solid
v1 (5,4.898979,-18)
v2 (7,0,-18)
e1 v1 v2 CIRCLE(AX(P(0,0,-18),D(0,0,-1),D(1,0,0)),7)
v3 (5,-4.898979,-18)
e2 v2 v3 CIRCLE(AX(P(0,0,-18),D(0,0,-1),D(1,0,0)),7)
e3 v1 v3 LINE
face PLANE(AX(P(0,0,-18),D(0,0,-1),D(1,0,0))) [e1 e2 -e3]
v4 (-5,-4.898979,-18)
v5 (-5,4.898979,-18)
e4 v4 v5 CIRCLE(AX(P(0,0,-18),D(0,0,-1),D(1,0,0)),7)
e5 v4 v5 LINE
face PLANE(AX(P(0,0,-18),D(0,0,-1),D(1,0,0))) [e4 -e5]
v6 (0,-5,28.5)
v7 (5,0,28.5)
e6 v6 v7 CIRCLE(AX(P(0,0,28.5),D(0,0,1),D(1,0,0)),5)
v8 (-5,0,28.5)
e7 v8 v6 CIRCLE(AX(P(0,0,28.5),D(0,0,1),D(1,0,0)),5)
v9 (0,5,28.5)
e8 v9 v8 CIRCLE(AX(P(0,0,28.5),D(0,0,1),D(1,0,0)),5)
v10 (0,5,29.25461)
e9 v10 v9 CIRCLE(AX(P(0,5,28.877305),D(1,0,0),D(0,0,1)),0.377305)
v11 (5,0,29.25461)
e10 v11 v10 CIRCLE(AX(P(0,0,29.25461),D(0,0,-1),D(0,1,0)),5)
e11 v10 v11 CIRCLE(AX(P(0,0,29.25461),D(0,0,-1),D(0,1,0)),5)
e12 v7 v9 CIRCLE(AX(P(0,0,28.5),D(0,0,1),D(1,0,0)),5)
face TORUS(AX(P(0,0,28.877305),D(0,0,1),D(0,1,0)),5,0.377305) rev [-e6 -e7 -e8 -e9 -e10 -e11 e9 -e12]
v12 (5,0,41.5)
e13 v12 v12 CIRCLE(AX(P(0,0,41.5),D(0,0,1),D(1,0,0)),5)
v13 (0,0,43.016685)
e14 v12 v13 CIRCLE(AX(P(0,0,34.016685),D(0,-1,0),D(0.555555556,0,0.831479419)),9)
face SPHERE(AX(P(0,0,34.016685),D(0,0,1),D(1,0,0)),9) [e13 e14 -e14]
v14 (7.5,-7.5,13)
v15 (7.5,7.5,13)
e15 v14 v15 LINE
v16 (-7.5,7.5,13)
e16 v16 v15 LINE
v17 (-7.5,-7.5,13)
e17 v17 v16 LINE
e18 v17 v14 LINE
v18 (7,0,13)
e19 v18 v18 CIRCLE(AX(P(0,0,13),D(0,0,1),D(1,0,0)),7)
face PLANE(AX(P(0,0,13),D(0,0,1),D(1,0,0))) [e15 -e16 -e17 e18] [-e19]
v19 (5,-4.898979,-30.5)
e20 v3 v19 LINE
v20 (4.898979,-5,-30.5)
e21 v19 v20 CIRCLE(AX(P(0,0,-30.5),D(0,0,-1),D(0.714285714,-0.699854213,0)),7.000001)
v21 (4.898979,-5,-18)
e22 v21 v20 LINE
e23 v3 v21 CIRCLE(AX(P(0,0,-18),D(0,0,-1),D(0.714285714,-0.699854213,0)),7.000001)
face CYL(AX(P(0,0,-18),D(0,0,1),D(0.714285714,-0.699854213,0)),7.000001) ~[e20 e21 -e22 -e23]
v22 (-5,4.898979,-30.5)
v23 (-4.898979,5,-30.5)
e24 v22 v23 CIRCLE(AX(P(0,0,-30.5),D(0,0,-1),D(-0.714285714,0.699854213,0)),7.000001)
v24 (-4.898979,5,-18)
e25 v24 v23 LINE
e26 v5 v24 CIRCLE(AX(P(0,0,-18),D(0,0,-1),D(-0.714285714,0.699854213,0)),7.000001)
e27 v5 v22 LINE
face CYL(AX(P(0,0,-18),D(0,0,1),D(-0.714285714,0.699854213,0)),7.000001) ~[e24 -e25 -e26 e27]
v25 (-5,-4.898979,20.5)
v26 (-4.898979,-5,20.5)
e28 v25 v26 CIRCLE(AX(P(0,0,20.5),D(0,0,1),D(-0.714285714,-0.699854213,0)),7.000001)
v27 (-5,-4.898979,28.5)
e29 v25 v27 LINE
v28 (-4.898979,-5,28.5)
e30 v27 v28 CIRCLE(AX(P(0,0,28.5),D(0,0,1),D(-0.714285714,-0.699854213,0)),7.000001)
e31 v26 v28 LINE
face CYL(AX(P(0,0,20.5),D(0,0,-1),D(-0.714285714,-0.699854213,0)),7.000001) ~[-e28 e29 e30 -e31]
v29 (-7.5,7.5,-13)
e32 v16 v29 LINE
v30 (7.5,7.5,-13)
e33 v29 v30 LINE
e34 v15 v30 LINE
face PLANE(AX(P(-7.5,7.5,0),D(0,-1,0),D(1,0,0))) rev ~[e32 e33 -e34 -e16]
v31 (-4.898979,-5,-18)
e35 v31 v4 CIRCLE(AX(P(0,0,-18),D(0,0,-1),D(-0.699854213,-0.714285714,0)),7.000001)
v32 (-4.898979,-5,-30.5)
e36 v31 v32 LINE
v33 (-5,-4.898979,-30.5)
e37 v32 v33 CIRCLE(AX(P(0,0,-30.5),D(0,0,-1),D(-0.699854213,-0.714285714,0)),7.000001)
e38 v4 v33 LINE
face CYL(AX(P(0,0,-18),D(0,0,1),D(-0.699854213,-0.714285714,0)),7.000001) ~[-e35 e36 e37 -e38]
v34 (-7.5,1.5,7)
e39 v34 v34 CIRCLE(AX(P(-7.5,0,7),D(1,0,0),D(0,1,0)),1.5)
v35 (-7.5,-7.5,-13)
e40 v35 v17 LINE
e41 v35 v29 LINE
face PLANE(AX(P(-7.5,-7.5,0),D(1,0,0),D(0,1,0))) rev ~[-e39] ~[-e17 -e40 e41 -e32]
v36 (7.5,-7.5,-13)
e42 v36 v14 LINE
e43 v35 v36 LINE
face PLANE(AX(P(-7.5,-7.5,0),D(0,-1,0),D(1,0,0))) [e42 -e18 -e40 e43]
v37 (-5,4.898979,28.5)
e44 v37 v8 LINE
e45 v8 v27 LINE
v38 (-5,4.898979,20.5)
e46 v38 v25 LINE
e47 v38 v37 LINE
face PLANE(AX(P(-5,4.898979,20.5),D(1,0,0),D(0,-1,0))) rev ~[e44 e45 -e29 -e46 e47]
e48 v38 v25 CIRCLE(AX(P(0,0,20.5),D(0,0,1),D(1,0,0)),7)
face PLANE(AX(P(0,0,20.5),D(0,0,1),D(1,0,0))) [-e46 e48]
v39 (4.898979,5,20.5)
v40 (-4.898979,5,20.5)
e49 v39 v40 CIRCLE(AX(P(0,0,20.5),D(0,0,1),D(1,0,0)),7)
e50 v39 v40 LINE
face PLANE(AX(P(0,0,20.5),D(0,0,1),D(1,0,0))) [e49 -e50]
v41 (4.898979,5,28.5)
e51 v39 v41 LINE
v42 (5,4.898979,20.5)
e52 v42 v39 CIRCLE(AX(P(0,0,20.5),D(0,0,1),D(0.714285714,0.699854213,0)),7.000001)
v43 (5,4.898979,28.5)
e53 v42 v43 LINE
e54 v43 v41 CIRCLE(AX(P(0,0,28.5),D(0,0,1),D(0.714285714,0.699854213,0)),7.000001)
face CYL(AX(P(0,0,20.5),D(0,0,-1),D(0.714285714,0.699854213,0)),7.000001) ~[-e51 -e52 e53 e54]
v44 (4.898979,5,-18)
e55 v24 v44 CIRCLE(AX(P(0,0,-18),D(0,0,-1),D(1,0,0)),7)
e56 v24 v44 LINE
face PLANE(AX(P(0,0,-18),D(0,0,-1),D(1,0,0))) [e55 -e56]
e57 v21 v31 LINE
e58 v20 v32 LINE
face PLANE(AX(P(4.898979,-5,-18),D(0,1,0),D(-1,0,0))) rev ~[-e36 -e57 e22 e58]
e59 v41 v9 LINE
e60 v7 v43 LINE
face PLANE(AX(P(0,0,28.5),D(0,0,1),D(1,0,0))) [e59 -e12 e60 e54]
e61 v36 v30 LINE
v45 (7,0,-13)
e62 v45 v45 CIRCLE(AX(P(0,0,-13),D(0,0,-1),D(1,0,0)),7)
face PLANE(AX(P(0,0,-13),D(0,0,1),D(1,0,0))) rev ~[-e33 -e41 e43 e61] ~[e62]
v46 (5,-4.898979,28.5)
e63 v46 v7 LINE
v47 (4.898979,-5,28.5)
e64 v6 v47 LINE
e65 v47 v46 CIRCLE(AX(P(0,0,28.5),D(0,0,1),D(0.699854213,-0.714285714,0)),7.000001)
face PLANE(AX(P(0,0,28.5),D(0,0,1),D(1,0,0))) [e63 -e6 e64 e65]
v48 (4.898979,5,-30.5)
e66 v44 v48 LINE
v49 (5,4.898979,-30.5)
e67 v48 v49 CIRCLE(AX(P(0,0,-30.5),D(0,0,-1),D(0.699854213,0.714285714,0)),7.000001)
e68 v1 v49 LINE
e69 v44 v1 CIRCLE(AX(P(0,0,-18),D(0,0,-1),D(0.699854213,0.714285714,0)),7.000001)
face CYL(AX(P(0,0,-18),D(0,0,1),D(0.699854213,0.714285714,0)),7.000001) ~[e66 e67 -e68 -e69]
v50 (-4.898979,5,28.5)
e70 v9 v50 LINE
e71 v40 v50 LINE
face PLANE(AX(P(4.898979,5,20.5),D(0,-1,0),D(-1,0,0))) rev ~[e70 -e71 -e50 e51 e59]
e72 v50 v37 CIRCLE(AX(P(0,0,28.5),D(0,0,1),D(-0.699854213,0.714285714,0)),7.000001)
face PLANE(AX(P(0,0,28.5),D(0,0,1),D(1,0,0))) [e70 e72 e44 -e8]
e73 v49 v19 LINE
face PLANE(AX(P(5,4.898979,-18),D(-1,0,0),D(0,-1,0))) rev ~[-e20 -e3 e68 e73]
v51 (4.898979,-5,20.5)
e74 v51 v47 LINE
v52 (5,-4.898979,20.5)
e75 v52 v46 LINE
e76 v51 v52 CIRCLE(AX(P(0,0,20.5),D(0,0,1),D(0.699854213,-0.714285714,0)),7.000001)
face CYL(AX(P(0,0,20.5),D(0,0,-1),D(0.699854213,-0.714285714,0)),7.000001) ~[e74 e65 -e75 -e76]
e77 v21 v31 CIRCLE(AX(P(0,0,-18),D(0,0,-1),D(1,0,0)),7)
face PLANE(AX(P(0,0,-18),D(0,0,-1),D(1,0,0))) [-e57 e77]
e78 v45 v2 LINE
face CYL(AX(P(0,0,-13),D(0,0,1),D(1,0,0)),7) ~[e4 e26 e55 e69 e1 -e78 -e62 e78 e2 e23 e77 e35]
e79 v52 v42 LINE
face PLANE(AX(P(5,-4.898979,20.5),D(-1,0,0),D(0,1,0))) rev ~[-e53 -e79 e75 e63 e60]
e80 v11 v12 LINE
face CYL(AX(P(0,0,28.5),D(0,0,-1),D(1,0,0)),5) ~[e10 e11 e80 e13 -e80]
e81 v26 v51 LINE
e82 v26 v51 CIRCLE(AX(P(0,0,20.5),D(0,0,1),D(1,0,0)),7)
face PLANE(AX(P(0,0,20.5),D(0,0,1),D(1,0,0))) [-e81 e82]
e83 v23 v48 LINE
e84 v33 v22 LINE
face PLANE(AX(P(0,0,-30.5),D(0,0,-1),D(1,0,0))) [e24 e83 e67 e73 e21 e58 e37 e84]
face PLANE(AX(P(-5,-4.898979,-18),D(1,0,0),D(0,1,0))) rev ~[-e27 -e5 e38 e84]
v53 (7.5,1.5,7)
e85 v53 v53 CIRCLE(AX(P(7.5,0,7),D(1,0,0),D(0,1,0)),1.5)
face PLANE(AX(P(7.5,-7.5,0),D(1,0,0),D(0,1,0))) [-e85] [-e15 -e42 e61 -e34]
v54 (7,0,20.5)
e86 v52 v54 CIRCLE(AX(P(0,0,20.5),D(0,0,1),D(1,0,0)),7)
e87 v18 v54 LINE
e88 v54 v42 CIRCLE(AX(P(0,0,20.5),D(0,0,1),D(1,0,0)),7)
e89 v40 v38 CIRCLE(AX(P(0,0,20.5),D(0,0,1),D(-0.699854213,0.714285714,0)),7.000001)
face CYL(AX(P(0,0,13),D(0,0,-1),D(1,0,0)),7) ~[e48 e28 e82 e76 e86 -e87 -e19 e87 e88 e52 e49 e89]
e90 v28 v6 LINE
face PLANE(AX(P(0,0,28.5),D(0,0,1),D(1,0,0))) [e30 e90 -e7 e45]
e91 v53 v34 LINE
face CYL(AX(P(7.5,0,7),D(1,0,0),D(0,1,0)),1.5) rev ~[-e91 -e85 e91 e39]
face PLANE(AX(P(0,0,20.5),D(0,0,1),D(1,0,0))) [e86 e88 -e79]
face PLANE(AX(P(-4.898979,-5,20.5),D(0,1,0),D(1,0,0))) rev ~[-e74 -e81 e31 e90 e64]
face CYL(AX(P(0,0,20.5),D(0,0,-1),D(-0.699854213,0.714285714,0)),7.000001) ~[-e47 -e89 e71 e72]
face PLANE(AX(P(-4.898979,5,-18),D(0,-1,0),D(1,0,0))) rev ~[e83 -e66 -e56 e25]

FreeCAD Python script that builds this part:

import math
import FreeCAD as App
import Part
import Sketcher


def add_polygon(sketch, points):
    """Adds a closed chain of lines whose ends are joined by coincident constraints."""
    first, n = sketch.GeometryCount, len(points)
    for a, b in zip(points, points[1:] + points[:1]):
        sketch.addGeometry(Part.LineSegment(App.Vector(*a, 0), App.Vector(*b, 0)), False)
    for i in range(n):
        sketch.addConstraint(Sketcher.Constraint("Coincident", first + i, 2, first + (i + 1) % n, 1))

doc = App.newDocument("Part")
body = doc.addObject("PartDesign::Body", "Body")

# Sketch on XY plane
sketch1 = body.newObject("Sketcher::SketchObject", "Sketch")
sketch1.AttachmentSupport = (doc.getObject("XY_Plane"), [""])
sketch1.MapMode = "FlatFace"
add_polygon(sketch1, [(-8, 8), (-8, -8), (8, -8), (8, 8)])  # lines 0-3
sketch1.addConstraint(Sketcher.Constraint("Vertical", 0))
sketch1.addConstraint(Sketcher.Constraint("Horizontal", 1))
sketch1.addConstraint(Sketcher.Constraint("Vertical", 2))
sketch1.addConstraint(Sketcher.Constraint("Horizontal", 3))
sketch1.addConstraint(Sketcher.Constraint("Symmetric", 0, 2, 2, 2, -1, 1))
sketch1.addConstraint(Sketcher.Constraint("Equal", 3, 0))
sketch1.addConstraint(Sketcher.Constraint("DistanceX", 1, 1, 1, 2, 15.0))
pad1 = body.newObject("PartDesign::Pad", "Pad")
pad1.Profile = sketch1
pad1.Length = 26
pad1.Midplane = True

# Sketch on XY plane
sketch2 = body.newObject("Sketcher::SketchObject", "Sketch001")
sketch2.AttachmentSupport = (doc.getObject("XY_Plane"), [""])
sketch2.MapMode = "FlatFace"
sketch2.AttachmentOffset = App.Placement(App.Vector(0, 0, -13), App.Rotation())
sketch2.addGeometry(Part.Circle(App.Vector(0, 0, 0), App.Vector(0, 0, 1), 7), False)
sketch2.addConstraint(Sketcher.Constraint("Coincident", 0, 3, -1, 1))
sketch2.addConstraint(Sketcher.Constraint("Diameter", 0, 14.0))
pad2 = body.newObject("PartDesign::Pad", "Pad001")
pad2.Profile = sketch2
pad2.Length = 5
pad2.Reversed = True

# Sketch on XY plane
sketch3 = body.newObject("Sketcher::SketchObject", "Sketch002")
sketch3.AttachmentSupport = (doc.getObject("XY_Plane"), [""])
sketch3.MapMode = "FlatFace"
sketch3.AttachmentOffset = App.Placement(App.Vector(0, 0, -18), App.Rotation())
sketch3.addGeometry(Part.LineSegment(App.Vector(-4.9, 5, 0), App.Vector(4.9, 5, 0)), False)
sketch3.addGeometry(Part.ArcOfCircle(Part.Circle(App.Vector(0, 0, 0), App.Vector(0, 0, 1), 7), math.radians(44.42), math.radians(45.58)), False)
sketch3.addGeometry(Part.LineSegment(App.Vector(5, 4.9, 0), App.Vector(5, -4.9, 0)), False)
sketch3.addGeometry(Part.ArcOfCircle(Part.Circle(App.Vector(0, 0, 0), App.Vector(0, 0, 1), 7), math.radians(-45.58), math.radians(-44.42)), False)
sketch3.addGeometry(Part.LineSegment(App.Vector(4.9, -5, 0), App.Vector(-4.9, -5, 0)), False)
sketch3.addGeometry(Part.ArcOfCircle(Part.Circle(App.Vector(0, 0, 0), App.Vector(0, 0, 1), 7), math.radians(-135.58), math.radians(-134.42)), False)
sketch3.addGeometry(Part.LineSegment(App.Vector(-5, -4.9, 0), App.Vector(-5, 4.9, 0)), False)
sketch3.addGeometry(Part.ArcOfCircle(Part.Circle(App.Vector(0, 0, 0), App.Vector(0, 0, 1), 7), math.radians(134.42), math.radians(135.58)), False)
sketch3.addConstraint(Sketcher.Constraint("Coincident", 0, 2, 1, 2))
sketch3.addConstraint(Sketcher.Constraint("Coincident", 1, 1, 2, 1))
sketch3.addConstraint(Sketcher.Constraint("Coincident", 2, 2, 3, 2))
sketch3.addConstraint(Sketcher.Constraint("Coincident", 3, 1, 4, 1))
sketch3.addConstraint(Sketcher.Constraint("Coincident", 4, 2, 5, 2))
sketch3.addConstraint(Sketcher.Constraint("Coincident", 5, 1, 6, 1))
sketch3.addConstraint(Sketcher.Constraint("Coincident", 6, 2, 7, 2))
sketch3.addConstraint(Sketcher.Constraint("Coincident", 7, 1, 0, 1))
sketch3.addConstraint(Sketcher.Constraint("Horizontal", 0))
sketch3.addConstraint(Sketcher.Constraint("Vertical", 2))
sketch3.addConstraint(Sketcher.Constraint("Horizontal", 4))
sketch3.addConstraint(Sketcher.Constraint("Vertical", 6))
sketch3.addConstraint(Sketcher.Constraint("Coincident", 1, 3, -1, 1))
sketch3.addConstraint(Sketcher.Constraint("Coincident", 3, 3, -1, 1))
sketch3.addConstraint(Sketcher.Constraint("Coincident", 5, 3, -1, 1))
sketch3.addConstraint(Sketcher.Constraint("Coincident", 7, 3, -1, 1))
sketch3.addConstraint(Sketcher.Constraint("Equal", 1, 3))
sketch3.addConstraint(Sketcher.Constraint("Equal", 3, 5))
sketch3.addConstraint(Sketcher.Constraint("Equal", 5, 7))
sketch3.addConstraint(Sketcher.Constraint("Horizontal", 2, 2, 5, 1))
sketch3.addConstraint(Sketcher.Constraint("Vertical", 0, 2, 3, 1))
sketch3.addConstraint(Sketcher.Constraint("Equal", 4, 2))
sketch3.addConstraint(Sketcher.Constraint("Radius", 1, 7.000001))
sketch3.addConstraint(Sketcher.Constraint("DistanceY", -1, 1, 0, 2, 5.0))
pad3 = body.newObject("PartDesign::Pad", "Pad002")
pad3.Profile = sketch3
pad3.Length = 12.5
pad3.Reversed = True

# Sketch on XY plane
sketch4 = body.newObject("Sketcher::SketchObject", "Sketch003")
sketch4.AttachmentSupport = (doc.getObject("XY_Plane"), [""])
sketch4.MapMode = "FlatFace"
sketch4.AttachmentOffset = App.Placement(App.Vector(0, 0, 13), App.Rotation())
sketch4.addGeometry(Part.Circle(App.Vector(0, 0, 0), App.Vector(0, 0, 1), 7), False)
sketch4.addConstraint(Sketcher.Constraint("Coincident", 0, 3, -1, 1))
sketch4.addConstraint(Sketcher.Constraint("Diameter", 0, 14.0))
pad4 = body.newObject("PartDesign::Pad", "Pad003")
pad4.Profile = sketch4
pad4.Length = 7.5

# Sketch on XY plane
sketch5 = body.newObject("Sketcher::SketchObject", "Sketch004")
sketch5.AttachmentSupport = (doc.getObject("XY_Plane"), [""])
sketch5.MapMode = "FlatFace"
sketch5.AttachmentOffset = App.Placement(App.Vector(0, 0, 20.5), App.Rotation())
sketch5.addGeometry(Part.LineSegment(App.Vector(-4.9, -5, 0), App.Vector(4.9, -5, 0)), False)
sketch5.addGeometry(Part.ArcOfCircle(Part.Circle(App.Vector(0, 0, 0), App.Vector(0, 0, 1), 7), math.radians(-45.58), math.radians(-44.42)), False)
sketch5.addGeometry(Part.LineSegment(App.Vector(5, -4.9, 0), App.Vector(5, 4.9, 0)), False)
sketch5.addGeometry(Part.ArcOfCircle(Part.Circle(App.Vector(0, 0, 0), App.Vector(0, 0, 1), 7), math.radians(44.42), math.radians(45.58)), False)
sketch5.addGeometry(Part.LineSegment(App.Vector(4.9, 5, 0), App.Vector(-4.9, 5, 0)), False)
sketch5.addGeometry(Part.ArcOfCircle(Part.Circle(App.Vector(0, 0, 0), App.Vector(0, 0, 1), 7), math.radians(134.42), math.radians(135.58)), False)
sketch5.addGeometry(Part.LineSegment(App.Vector(-5, 4.9, 0), App.Vector(-5, -4.9, 0)), False)
sketch5.addGeometry(Part.ArcOfCircle(Part.Circle(App.Vector(0, 0, 0), App.Vector(0, 0, 1), 7), math.radians(-135.58), math.radians(-134.42)), False)
sketch5.addConstraint(Sketcher.Constraint("Coincident", 0, 2, 1, 1))
sketch5.addConstraint(Sketcher.Constraint("Coincident", 1, 2, 2, 1))
sketch5.addConstraint(Sketcher.Constraint("Coincident", 2, 2, 3, 1))
sketch5.addConstraint(Sketcher.Constraint("Coincident", 3, 2, 4, 1))
sketch5.addConstraint(Sketcher.Constraint("Coincident", 4, 2, 5, 1))
sketch5.addConstraint(Sketcher.Constraint("Coincident", 5, 2, 6, 1))
sketch5.addConstraint(Sketcher.Constraint("Coincident", 6, 2, 7, 1))
sketch5.addConstraint(Sketcher.Constraint("Coincident", 7, 2, 0, 1))
sketch5.addConstraint(Sketcher.Constraint("Horizontal", 0))
sketch5.addConstraint(Sketcher.Constraint("Vertical", 2))
sketch5.addConstraint(Sketcher.Constraint("Horizontal", 4))
sketch5.addConstraint(Sketcher.Constraint("Vertical", 6))
sketch5.addConstraint(Sketcher.Constraint("Coincident", 1, 3, -1, 1))
sketch5.addConstraint(Sketcher.Constraint("Coincident", 3, 3, -1, 1))
sketch5.addConstraint(Sketcher.Constraint("Coincident", 5, 3, -1, 1))
sketch5.addConstraint(Sketcher.Constraint("Coincident", 7, 3, -1, 1))
sketch5.addConstraint(Sketcher.Constraint("Equal", 1, 3))
sketch5.addConstraint(Sketcher.Constraint("Equal", 3, 5))
sketch5.addConstraint(Sketcher.Constraint("Equal", 5, 7))
sketch5.addConstraint(Sketcher.Constraint("Horizontal", 2, 2, 5, 2))
sketch5.addConstraint(Sketcher.Constraint("Vertical", 0, 2, 3, 2))
sketch5.addConstraint(Sketcher.Constraint("Equal", 4, 2))
sketch5.addConstraint(Sketcher.Constraint("Radius", 1, 7.000001))
sketch5.addConstraint(Sketcher.Constraint("DistanceY", 0, 2, -1, 1, 5.0))
pad5 = body.newObject("PartDesign::Pad", "Pad004")
pad5.Profile = sketch5
pad5.Length = 8

# Sketch on XY plane
sketch6 = body.newObject("Sketcher::SketchObject", "Sketch005")
sketch6.AttachmentSupport = (doc.getObject("XY_Plane"), [""])
sketch6.MapMode = "FlatFace"
sketch6.AttachmentOffset = App.Placement(App.Vector(0, 0, 28.5), App.Rotation())
sketch6.addGeometry(Part.Circle(App.Vector(0, 0, 0), App.Vector(0, 0, 1), 5), False)
sketch6.addConstraint(Sketcher.Constraint("Coincident", 0, 3, -1, 1))
sketch6.addConstraint(Sketcher.Constraint("Diameter", 0, 10.0))
pad6 = body.newObject("PartDesign::Pad", "Pad005")
pad6.Profile = sketch6
pad6.Length = 13

# Sketch on YZ plane
sketch7 = body.newObject("Sketcher::SketchObject", "Sketch006")
sketch7.AttachmentSupport = (doc.getObject("YZ_Plane"), [""])
sketch7.MapMode = "FlatFace"
sketch7.addGeometry(Part.LineSegment(App.Vector(5, 28.5, 0), App.Vector(5, 29.25, 0)), False)
sketch7.addGeometry(Part.ArcOfCircle(Part.Circle(App.Vector(5, 28.88, 0), App.Vector(0, 0, 1), 0.38), math.radians(90), math.radians(270)), False)
sketch7.addConstraint(Sketcher.Constraint("Coincident", 0, 1, 1, 2))
sketch7.addConstraint(Sketcher.Constraint("Coincident", 1, 1, 0, 2))
sketch7.addConstraint(Sketcher.Constraint("Vertical", 0))
sketch7.addConstraint(Sketcher.Constraint("Vertical", 1, 3, 0, 1))
sketch7.addConstraint(Sketcher.Constraint("DistanceX", -1, 1, 1, 3, 5.0))
sketch7.addConstraint(Sketcher.Constraint("DistanceY", -1, 1, 0, 1, 28.5))
sketch7.addConstraint(Sketcher.Constraint("Radius", 1, 0.377305))
groove = body.newObject("PartDesign::Groove", "Groove")
groove.Profile = sketch7
groove.ReferenceAxis = (sketch7, ["V_Axis"])
groove.Angle = 360

# Sketch on XZ plane
sketch8 = body.newObject("Sketcher::SketchObject", "Sketch007")
sketch8.AttachmentSupport = (doc.getObject("XZ_Plane"), [""])
sketch8.MapMode = "FlatFace"
sketch8.addGeometry(Part.LineSegment(App.Vector(0, 41.5, 0), App.Vector(5, 41.5, 0)), False)
sketch8.addGeometry(Part.ArcOfCircle(Part.Circle(App.Vector(0, 34, 0), App.Vector(0, 0, 1), 9), math.radians(56), math.radians(90)), False)
sketch8.addGeometry(Part.LineSegment(App.Vector(0, 43, 0), App.Vector(0, 41.5, 0)), False)
sketch8.addConstraint(Sketcher.Constraint("Coincident", 0, 2, 1, 1))
sketch8.addConstraint(Sketcher.Constraint("Coincident", 1, 2, 2, 1))
sketch8.addConstraint(Sketcher.Constraint("Coincident", 2, 2, 0, 1))
sketch8.addConstraint(Sketcher.Constraint("Horizontal", 0))
sketch8.addConstraint(Sketcher.Constraint("Vertical", 2))
sketch8.addConstraint(Sketcher.Constraint("PointOnObject", 1, 3, -2))
sketch8.addConstraint(Sketcher.Constraint("PointOnObject", 1, 2, -2))
sketch8.addConstraint(Sketcher.Constraint("Radius", 1, 9.0))
sketch8.addConstraint(Sketcher.Constraint("DistanceX", 0, 1, 0, 2, 5.0))
sketch8.addConstraint(Sketcher.Constraint("DistanceY", -1, 1, 0, 2, 41.5))
revolution = body.newObject("PartDesign::Revolution", "Revolution")
revolution.Profile = sketch8
revolution.ReferenceAxis = (sketch8, ["V_Axis"])
revolution.Angle = 360

# Sketch on YZ plane
sketch9 = body.newObject("Sketcher::SketchObject", "Sketch008")
sketch9.AttachmentSupport = (doc.getObject("YZ_Plane"), [""])
sketch9.MapMode = "FlatFace"
sketch9.AttachmentOffset = App.Placement(App.Vector(0, 0, 7.5), App.Rotation())
sketch9.addGeometry(Part.Circle(App.Vector(0, 7, 0), App.Vector(0, 0, 1), 1.5), False)
sketch9.addConstraint(Sketcher.Constraint("PointOnObject", 0, 3, -2))
sketch9.addConstraint(Sketcher.Constraint("Diameter", 0, 3.0))
sketch9.addConstraint(Sketcher.Constraint("DistanceY", -1, 1, 0, 3, 7.0))
pocket1 = body.newObject("PartDesign::Pocket", "Pocket")
pocket1.Profile = sketch9
pocket1.Length = 25

doc.recompute()
